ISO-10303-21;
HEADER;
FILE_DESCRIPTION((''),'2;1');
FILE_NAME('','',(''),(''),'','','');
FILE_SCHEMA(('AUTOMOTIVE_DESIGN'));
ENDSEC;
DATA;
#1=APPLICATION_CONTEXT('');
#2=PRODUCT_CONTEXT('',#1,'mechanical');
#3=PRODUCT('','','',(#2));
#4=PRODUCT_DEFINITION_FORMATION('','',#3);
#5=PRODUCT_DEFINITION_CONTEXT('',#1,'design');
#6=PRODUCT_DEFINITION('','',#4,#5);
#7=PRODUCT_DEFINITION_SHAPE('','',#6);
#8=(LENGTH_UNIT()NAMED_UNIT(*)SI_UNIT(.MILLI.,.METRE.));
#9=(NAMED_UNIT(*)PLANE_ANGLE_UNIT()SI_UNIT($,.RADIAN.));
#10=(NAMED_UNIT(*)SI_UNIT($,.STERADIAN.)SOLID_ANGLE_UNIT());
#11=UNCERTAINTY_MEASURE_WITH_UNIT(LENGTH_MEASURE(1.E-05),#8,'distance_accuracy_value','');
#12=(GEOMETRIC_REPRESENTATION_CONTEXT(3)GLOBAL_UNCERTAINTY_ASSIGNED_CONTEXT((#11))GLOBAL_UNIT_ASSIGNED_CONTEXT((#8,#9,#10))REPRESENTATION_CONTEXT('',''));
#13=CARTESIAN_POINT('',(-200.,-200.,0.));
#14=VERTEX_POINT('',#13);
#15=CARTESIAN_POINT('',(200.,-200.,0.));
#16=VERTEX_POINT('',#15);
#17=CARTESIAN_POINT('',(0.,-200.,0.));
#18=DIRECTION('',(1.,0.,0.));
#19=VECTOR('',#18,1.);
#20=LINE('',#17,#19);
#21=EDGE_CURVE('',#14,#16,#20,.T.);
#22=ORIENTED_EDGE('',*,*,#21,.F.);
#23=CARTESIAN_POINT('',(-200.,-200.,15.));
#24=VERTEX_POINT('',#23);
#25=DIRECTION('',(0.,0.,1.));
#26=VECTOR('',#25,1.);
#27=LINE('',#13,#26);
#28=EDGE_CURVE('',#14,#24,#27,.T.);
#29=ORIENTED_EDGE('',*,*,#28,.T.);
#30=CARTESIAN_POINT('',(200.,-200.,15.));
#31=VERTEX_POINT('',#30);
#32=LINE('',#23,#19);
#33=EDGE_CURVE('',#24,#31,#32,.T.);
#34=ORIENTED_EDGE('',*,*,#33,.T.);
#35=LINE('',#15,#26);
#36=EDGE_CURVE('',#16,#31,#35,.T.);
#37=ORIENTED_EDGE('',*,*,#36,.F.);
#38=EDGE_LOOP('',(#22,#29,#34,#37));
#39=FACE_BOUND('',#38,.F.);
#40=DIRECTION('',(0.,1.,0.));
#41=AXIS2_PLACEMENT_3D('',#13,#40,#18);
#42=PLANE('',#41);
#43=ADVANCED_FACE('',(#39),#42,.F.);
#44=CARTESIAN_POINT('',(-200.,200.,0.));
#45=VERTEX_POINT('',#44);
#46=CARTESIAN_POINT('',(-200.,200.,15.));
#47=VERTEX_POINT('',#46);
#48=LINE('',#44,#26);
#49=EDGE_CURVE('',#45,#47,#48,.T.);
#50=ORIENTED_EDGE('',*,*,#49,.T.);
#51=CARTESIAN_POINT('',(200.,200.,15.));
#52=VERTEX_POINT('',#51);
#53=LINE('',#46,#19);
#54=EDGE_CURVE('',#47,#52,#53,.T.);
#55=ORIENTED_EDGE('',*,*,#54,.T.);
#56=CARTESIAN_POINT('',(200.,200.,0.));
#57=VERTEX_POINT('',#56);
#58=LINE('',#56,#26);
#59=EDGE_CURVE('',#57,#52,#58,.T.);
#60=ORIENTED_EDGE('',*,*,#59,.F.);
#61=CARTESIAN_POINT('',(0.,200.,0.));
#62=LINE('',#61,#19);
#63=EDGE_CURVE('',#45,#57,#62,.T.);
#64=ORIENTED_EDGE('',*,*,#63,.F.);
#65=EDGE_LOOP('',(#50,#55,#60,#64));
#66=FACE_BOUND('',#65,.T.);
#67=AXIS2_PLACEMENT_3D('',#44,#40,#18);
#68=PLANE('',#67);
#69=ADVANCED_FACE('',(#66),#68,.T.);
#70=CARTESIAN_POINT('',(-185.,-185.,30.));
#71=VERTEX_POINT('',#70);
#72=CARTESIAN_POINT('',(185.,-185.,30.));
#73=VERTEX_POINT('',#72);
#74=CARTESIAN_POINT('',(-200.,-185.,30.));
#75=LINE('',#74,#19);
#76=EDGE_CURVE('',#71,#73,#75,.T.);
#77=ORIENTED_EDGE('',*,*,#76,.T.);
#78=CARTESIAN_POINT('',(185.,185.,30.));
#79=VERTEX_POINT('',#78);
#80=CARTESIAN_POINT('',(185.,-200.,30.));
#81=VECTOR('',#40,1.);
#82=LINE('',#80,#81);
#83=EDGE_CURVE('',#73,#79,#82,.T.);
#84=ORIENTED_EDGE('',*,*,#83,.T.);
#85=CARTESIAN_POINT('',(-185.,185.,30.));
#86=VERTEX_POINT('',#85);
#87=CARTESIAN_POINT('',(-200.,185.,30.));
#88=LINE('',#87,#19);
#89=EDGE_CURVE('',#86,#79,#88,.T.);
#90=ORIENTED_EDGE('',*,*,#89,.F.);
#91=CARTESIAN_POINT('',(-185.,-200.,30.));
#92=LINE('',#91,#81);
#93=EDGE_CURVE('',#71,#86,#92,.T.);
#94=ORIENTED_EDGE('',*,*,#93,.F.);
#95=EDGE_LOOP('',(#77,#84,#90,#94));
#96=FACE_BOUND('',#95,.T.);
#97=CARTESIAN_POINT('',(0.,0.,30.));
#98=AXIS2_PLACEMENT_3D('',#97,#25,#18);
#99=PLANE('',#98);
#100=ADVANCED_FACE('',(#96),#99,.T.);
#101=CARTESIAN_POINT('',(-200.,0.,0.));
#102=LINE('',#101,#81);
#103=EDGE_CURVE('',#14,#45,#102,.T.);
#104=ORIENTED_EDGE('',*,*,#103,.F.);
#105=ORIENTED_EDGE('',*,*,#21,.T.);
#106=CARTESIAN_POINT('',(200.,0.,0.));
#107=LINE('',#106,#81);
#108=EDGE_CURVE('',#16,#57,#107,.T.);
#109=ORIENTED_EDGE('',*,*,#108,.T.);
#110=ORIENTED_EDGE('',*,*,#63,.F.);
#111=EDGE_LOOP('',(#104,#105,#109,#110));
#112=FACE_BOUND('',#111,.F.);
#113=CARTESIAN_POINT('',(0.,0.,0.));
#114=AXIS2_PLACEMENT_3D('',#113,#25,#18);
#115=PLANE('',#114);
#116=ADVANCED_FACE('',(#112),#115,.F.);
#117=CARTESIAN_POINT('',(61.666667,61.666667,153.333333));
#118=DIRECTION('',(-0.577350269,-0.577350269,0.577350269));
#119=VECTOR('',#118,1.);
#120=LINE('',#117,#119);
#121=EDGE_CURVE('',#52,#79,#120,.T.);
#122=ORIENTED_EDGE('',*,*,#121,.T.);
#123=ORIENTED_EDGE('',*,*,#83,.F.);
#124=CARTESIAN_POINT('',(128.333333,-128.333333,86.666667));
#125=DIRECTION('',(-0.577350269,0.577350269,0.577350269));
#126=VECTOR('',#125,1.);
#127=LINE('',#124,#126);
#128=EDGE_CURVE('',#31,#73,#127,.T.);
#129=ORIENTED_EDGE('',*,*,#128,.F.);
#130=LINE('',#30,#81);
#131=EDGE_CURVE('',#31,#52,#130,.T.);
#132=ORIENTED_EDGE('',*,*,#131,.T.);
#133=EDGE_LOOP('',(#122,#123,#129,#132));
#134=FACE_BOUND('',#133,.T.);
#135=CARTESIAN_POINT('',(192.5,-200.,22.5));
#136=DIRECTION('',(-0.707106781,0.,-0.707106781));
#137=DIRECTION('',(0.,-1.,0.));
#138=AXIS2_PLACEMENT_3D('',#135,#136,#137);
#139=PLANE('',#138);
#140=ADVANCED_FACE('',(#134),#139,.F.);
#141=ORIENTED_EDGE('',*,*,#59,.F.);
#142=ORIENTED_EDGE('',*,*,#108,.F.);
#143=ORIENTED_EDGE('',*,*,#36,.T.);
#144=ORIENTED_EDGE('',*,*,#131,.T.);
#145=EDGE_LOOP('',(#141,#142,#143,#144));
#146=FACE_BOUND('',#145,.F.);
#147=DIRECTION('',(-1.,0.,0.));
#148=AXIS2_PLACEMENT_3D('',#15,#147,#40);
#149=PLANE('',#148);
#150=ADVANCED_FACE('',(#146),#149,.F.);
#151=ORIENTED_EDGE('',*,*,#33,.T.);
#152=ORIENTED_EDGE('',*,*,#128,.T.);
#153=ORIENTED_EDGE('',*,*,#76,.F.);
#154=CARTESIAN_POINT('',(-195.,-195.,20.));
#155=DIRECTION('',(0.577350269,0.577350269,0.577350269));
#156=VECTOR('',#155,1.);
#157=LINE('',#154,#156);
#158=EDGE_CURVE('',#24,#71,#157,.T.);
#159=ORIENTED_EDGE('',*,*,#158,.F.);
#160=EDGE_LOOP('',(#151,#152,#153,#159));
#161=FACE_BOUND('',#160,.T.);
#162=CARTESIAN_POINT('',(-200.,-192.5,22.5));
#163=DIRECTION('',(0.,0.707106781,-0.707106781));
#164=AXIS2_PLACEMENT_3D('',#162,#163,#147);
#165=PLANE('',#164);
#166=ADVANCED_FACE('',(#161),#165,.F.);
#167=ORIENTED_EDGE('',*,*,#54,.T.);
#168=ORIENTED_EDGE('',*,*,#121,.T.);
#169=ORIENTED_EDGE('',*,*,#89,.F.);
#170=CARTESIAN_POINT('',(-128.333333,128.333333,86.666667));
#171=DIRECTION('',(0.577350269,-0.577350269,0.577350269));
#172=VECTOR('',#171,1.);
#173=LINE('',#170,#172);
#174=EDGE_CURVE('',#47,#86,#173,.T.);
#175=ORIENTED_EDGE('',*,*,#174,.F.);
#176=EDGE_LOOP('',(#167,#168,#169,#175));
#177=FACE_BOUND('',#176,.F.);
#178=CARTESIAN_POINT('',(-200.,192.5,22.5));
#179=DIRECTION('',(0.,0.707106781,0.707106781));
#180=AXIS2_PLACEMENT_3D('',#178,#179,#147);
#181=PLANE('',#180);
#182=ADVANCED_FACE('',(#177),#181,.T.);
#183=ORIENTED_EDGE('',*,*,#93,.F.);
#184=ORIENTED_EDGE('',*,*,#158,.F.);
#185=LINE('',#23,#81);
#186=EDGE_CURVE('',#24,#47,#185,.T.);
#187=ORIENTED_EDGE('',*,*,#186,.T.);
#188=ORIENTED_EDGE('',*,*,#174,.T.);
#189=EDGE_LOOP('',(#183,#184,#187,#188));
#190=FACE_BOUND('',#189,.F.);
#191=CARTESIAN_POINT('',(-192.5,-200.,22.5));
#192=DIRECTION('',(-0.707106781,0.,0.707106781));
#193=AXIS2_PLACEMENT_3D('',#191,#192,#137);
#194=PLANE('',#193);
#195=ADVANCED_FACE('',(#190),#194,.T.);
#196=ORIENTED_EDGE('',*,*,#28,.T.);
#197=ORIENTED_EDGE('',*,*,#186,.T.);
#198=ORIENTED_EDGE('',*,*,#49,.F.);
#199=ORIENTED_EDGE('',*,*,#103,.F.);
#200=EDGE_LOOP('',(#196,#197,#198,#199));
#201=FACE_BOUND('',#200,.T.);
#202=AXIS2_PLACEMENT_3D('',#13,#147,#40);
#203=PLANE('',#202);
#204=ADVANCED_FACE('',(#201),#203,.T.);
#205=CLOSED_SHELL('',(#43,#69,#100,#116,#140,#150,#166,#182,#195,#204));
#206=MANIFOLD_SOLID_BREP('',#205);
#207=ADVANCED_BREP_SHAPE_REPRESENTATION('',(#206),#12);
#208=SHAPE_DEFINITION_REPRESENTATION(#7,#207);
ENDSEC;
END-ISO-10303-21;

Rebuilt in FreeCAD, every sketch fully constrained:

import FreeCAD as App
import Part
import Sketcher

V = App.Vector
Q = App.Units.Quantity


def edges_at(feature, points):
    """Names of the edges that pass closest to the given points."""
    edges = feature.Shape.Edges
    near = lambda p: min(range(len(edges)), key=lambda i: edges[i].distToShape(Part.Vertex(*p))[0])
    return sorted({f"Edge{near(p) + 1}" for p in points})


def add_polygon(sketch, points):
    """Adds a closed chain of lines whose ends are joined by coincident constraints."""
    first, n = sketch.GeometryCount, len(points)
    for a, b in zip(points, points[1:] + points[:1]):
        sketch.addGeometry(Part.LineSegment(App.Vector(*a, 0), App.Vector(*b, 0)), False)
    for i in range(n):
        sketch.addConstraint(Sketcher.Constraint("Coincident", first + i, 2, first + (i + 1) % n, 1))

doc = App.newDocument("Part")
body = doc.addObject("PartDesign::Body", "Body")

# Sketch on XY plane
sketch1 = body.newObject("Sketcher::SketchObject", "Sketch")
sketch1.AttachmentSupport = (doc.getObject("XY_Plane"), [""])
sketch1.MapMode = "FlatFace"
add_polygon(sketch1, [(-200, 200), (-200, -200), (200, -200), (200, 200)])  # lines 0-3
sketch1.addConstraint([
    Sketcher.Constraint("Vertical", 0),
    Sketcher.Constraint("Horizontal", 1),
    Sketcher.Constraint("Vertical", 2),
    Sketcher.Constraint("Horizontal", 3),
    Sketcher.Constraint("Symmetric", 0, 2, 2, 2, -1, 1),
    Sketcher.Constraint("Equal", 3, 0),
    Sketcher.Constraint("DistanceX", 1, 1, 1, 2, Q("400 mm")),
])
pad1 = body.newObject("PartDesign::Pad", "Pad")
pad1.Profile = sketch1
pad1.Length = 30
doc.recompute()

chamfer = body.newObject("PartDesign::Chamfer", "Chamfer")
chamfer.Base = (pad1, edges_at(pad1, [
    (0, -200, 30),
    (200, 0, 30),
    (0, 200, 30),
    (-200, 0, 30),
]))
chamfer.Size = 15

doc.recompute()
